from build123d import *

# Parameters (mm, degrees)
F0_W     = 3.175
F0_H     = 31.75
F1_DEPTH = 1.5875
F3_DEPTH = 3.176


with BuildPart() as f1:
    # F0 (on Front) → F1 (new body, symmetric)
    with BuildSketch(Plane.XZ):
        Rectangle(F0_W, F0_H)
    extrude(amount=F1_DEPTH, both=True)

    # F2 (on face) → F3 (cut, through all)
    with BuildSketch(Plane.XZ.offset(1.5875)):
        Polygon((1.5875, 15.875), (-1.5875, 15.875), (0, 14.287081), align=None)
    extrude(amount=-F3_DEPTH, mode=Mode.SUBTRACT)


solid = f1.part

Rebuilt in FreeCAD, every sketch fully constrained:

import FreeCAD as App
import Part
import Sketcher

V = App.Vector
Q = App.Units.Quantity

doc = App.newDocument("Part")
params = doc.addObject("Spreadsheet::Sheet", "Params")
for row, (alias, value) in enumerate([
    ("sketch1_height", "1.25 in"),
    ("sketch1_width", "0.125 in"),
    ("pad1_length", "0.125 in"),
    ("sketch2_width", "0.125 in"),
], start=1):
    params.set(f"A{row}", alias)
    params.set(f"B{row}", "=" + value)
    params.setAlias(f"B{row}", alias)

body = doc.addObject("PartDesign::Body", "Body")

# Sketch on XZ plane
sketch1 = body.newObject("Sketcher::SketchObject", "Sketch")
sketch1.AttachmentSupport = (doc.getObject("XZ_Plane"), [""])
sketch1.MapMode = "FlatFace"
sketch1.addGeometry(Part.LineSegment(V(-1.6, 15.9, 0), V(-1.6, -15.9, 0)), False)
sketch1.addGeometry(Part.LineSegment(V(-1.6, -15.9, 0), V(1.6, -15.9, 0)), False)
sketch1.addGeometry(Part.LineSegment(V(1.6, -15.9, 0), V(1.6, 15.9, 0)), False)
sketch1.addGeometry(Part.LineSegment(V(1.6, 15.9, 0), V(-1.6, 15.9, 0)), False)
sketch1.addConstraint(Sketcher.Constraint("Coincident", 0, 2, 1, 1))
sketch1.addConstraint(Sketcher.Constraint("Coincident", 1, 2, 2, 1))
sketch1.addConstraint(Sketcher.Constraint("Coincident", 2, 2, 3, 1))
sketch1.addConstraint(Sketcher.Constraint("Coincident", 3, 2, 0, 1))
sketch1.addConstraint(Sketcher.Constraint("Vertical", 0))
sketch1.addConstraint(Sketcher.Constraint("Horizontal", 1))
sketch1.addConstraint(Sketcher.Constraint("Vertical", 2))
sketch1.addConstraint(Sketcher.Constraint("Horizontal", 3))
sketch1.addConstraint(Sketcher.Constraint("Symmetric", 0, 2, 2, 2, -1, 1))
sketch1.addConstraint(Sketcher.Constraint("DistanceY", 0, 2, 0, 1, Q("1.25 in")))
sketch1.addConstraint(Sketcher.Constraint("DistanceX", 1, 1, 1, 2, Q("0.125 in")))
sketch1.setExpression("Constraints[9]", "Params.sketch1_height")
sketch1.setExpression("Constraints[10]", "Params.sketch1_width")
pad1 = body.newObject("PartDesign::Pad", "Pad")
pad1.Profile = sketch1
pad1.setExpression("Length", "Params.pad1_length")
pad1.Midplane = True

# Sketch on XZ plane
sketch2 = body.newObject("Sketcher::SketchObject", "Sketch001")
sketch2.AttachmentSupport = (doc.getObject("XZ_Plane"), [""])
sketch2.MapMode = "FlatFace"
sketch2.AttachmentOffset = App.Placement(V(0, 0, 0.0625 * 25.4), App.Rotation())
sketch2.addGeometry(Part.LineSegment(V(1.6, 15.9, 0), V(-1.6, 15.9, 0)), False)
sketch2.addGeometry(Part.LineSegment(V(-1.6, 15.9, 0), V(0, 14.3, 0)), False)
sketch2.addGeometry(Part.LineSegment(V(0, 14.3, 0), V(1.6, 15.9, 0)), False)
sketch2.addConstraint(Sketcher.Constraint("Coincident", 0, 2, 1, 1))
sketch2.addConstraint(Sketcher.Constraint("Coincident", 1, 2, 2, 1))
sketch2.addConstraint(Sketcher.Constraint("Coincident", 2, 2, 0, 1))
sketch2.addConstraint(Sketcher.Constraint("Horizontal", 0))
sketch2.addConstraint(Sketcher.Constraint("PointOnObject", 1, 2, -2))
sketch2.addConstraint(Sketcher.Constraint("Equal", 1, 2))
sketch2.addConstraint(Sketcher.Constraint("DistanceX", 0, 2, 0, 1, Q("0.125 in")))
sketch2.addConstraint(Sketcher.Constraint("DistanceY", -1, 1, 0, 2, Q("0.625 in")))
sketch2.addConstraint(Sketcher.Constraint("Distance", 1, Q("0.0884 in")))
sketch2.setExpression("Constraints[6]", "Params.sketch2_width")
pocket1 = body.newObject("PartDesign::Pocket", "Pocket")
pocket1.Profile = sketch2
pocket1.Type = "ThroughAll"

doc.recompute()
